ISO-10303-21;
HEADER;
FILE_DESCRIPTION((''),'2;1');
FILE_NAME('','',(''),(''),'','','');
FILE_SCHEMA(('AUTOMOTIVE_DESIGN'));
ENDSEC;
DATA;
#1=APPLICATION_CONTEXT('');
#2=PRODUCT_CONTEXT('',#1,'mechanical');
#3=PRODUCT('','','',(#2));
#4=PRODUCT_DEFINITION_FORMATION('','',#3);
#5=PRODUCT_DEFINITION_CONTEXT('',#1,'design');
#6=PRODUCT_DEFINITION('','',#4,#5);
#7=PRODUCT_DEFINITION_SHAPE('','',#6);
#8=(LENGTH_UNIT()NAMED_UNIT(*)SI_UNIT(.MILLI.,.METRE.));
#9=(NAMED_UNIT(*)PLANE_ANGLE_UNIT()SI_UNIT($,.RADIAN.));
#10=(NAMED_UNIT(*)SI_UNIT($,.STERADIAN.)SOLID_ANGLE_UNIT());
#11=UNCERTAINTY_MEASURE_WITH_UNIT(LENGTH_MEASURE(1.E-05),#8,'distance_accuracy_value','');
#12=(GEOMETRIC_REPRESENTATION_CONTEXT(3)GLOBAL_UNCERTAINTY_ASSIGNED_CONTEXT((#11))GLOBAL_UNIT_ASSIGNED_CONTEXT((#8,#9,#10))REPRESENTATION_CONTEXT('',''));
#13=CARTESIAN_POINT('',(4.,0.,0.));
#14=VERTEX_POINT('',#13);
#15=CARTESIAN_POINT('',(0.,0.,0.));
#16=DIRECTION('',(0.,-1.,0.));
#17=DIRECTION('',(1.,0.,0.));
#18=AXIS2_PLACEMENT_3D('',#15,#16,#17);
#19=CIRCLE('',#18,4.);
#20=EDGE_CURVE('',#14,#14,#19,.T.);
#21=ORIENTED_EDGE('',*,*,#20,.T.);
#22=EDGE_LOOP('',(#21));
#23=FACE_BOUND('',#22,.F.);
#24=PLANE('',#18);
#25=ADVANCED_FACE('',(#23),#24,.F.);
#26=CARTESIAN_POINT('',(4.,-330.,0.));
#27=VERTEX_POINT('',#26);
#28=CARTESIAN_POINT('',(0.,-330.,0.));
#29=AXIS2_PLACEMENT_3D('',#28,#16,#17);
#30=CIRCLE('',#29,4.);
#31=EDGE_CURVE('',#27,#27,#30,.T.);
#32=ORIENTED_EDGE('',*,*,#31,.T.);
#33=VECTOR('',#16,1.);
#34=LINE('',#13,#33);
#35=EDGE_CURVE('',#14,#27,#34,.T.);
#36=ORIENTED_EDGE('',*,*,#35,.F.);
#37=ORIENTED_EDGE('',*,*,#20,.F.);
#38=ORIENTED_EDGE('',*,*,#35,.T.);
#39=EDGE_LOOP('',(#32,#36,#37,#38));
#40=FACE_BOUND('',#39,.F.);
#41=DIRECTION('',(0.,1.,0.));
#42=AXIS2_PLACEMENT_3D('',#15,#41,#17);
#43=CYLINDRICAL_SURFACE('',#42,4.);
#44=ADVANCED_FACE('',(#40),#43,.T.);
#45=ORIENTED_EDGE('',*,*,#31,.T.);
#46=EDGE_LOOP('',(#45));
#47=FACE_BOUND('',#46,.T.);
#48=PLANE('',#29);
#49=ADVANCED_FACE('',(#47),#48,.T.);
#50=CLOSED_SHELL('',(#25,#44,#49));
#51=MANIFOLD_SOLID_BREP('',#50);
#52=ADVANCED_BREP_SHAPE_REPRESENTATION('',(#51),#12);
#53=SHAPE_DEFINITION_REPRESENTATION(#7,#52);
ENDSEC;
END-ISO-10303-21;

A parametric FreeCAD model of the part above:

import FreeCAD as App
import Part
import Sketcher

doc = App.newDocument("Part")
params = doc.addObject("Spreadsheet::Sheet", "Params")
for row, (alias, value) in enumerate([
    ("sketch1_diameter", "8 mm"),
    ("pad1_length", "330 mm"),
], start=1):
    params.set(f"A{row}", alias)
    params.set(f"B{row}", "=" + value)
    params.setAlias(f"B{row}", alias)

body = doc.addObject("PartDesign::Body", "Body")

# Sketch on XZ plane
sketch1 = doc.addObject("Sketcher::SketchObject", "Sketch")
body.addObject(sketch1)
sketch1.AttachmentSupport = (doc.XZ_Plane, [""])
sketch1.MapMode = "FlatFace"
sketch1.addGeometry(Part.Circle(App.Vector(0, 0, 0), App.Vector(0, 0, 1), 4), False)
sketch1.addConstraint(Sketcher.Constraint("Coincident", 0, 3, -1, 1))
sketch1.addConstraint(Sketcher.Constraint("Diameter", 0, 8.0))
sketch1.setExpression("Constraints[1]", "Params.sketch1_diameter")
pad1 = doc.addObject("PartDesign::Pad", "Pad")
body.addObject(pad1)
pad1.Profile = sketch1
pad1.setExpression("Length", "Params.pad1_length")

doc.recompute()
